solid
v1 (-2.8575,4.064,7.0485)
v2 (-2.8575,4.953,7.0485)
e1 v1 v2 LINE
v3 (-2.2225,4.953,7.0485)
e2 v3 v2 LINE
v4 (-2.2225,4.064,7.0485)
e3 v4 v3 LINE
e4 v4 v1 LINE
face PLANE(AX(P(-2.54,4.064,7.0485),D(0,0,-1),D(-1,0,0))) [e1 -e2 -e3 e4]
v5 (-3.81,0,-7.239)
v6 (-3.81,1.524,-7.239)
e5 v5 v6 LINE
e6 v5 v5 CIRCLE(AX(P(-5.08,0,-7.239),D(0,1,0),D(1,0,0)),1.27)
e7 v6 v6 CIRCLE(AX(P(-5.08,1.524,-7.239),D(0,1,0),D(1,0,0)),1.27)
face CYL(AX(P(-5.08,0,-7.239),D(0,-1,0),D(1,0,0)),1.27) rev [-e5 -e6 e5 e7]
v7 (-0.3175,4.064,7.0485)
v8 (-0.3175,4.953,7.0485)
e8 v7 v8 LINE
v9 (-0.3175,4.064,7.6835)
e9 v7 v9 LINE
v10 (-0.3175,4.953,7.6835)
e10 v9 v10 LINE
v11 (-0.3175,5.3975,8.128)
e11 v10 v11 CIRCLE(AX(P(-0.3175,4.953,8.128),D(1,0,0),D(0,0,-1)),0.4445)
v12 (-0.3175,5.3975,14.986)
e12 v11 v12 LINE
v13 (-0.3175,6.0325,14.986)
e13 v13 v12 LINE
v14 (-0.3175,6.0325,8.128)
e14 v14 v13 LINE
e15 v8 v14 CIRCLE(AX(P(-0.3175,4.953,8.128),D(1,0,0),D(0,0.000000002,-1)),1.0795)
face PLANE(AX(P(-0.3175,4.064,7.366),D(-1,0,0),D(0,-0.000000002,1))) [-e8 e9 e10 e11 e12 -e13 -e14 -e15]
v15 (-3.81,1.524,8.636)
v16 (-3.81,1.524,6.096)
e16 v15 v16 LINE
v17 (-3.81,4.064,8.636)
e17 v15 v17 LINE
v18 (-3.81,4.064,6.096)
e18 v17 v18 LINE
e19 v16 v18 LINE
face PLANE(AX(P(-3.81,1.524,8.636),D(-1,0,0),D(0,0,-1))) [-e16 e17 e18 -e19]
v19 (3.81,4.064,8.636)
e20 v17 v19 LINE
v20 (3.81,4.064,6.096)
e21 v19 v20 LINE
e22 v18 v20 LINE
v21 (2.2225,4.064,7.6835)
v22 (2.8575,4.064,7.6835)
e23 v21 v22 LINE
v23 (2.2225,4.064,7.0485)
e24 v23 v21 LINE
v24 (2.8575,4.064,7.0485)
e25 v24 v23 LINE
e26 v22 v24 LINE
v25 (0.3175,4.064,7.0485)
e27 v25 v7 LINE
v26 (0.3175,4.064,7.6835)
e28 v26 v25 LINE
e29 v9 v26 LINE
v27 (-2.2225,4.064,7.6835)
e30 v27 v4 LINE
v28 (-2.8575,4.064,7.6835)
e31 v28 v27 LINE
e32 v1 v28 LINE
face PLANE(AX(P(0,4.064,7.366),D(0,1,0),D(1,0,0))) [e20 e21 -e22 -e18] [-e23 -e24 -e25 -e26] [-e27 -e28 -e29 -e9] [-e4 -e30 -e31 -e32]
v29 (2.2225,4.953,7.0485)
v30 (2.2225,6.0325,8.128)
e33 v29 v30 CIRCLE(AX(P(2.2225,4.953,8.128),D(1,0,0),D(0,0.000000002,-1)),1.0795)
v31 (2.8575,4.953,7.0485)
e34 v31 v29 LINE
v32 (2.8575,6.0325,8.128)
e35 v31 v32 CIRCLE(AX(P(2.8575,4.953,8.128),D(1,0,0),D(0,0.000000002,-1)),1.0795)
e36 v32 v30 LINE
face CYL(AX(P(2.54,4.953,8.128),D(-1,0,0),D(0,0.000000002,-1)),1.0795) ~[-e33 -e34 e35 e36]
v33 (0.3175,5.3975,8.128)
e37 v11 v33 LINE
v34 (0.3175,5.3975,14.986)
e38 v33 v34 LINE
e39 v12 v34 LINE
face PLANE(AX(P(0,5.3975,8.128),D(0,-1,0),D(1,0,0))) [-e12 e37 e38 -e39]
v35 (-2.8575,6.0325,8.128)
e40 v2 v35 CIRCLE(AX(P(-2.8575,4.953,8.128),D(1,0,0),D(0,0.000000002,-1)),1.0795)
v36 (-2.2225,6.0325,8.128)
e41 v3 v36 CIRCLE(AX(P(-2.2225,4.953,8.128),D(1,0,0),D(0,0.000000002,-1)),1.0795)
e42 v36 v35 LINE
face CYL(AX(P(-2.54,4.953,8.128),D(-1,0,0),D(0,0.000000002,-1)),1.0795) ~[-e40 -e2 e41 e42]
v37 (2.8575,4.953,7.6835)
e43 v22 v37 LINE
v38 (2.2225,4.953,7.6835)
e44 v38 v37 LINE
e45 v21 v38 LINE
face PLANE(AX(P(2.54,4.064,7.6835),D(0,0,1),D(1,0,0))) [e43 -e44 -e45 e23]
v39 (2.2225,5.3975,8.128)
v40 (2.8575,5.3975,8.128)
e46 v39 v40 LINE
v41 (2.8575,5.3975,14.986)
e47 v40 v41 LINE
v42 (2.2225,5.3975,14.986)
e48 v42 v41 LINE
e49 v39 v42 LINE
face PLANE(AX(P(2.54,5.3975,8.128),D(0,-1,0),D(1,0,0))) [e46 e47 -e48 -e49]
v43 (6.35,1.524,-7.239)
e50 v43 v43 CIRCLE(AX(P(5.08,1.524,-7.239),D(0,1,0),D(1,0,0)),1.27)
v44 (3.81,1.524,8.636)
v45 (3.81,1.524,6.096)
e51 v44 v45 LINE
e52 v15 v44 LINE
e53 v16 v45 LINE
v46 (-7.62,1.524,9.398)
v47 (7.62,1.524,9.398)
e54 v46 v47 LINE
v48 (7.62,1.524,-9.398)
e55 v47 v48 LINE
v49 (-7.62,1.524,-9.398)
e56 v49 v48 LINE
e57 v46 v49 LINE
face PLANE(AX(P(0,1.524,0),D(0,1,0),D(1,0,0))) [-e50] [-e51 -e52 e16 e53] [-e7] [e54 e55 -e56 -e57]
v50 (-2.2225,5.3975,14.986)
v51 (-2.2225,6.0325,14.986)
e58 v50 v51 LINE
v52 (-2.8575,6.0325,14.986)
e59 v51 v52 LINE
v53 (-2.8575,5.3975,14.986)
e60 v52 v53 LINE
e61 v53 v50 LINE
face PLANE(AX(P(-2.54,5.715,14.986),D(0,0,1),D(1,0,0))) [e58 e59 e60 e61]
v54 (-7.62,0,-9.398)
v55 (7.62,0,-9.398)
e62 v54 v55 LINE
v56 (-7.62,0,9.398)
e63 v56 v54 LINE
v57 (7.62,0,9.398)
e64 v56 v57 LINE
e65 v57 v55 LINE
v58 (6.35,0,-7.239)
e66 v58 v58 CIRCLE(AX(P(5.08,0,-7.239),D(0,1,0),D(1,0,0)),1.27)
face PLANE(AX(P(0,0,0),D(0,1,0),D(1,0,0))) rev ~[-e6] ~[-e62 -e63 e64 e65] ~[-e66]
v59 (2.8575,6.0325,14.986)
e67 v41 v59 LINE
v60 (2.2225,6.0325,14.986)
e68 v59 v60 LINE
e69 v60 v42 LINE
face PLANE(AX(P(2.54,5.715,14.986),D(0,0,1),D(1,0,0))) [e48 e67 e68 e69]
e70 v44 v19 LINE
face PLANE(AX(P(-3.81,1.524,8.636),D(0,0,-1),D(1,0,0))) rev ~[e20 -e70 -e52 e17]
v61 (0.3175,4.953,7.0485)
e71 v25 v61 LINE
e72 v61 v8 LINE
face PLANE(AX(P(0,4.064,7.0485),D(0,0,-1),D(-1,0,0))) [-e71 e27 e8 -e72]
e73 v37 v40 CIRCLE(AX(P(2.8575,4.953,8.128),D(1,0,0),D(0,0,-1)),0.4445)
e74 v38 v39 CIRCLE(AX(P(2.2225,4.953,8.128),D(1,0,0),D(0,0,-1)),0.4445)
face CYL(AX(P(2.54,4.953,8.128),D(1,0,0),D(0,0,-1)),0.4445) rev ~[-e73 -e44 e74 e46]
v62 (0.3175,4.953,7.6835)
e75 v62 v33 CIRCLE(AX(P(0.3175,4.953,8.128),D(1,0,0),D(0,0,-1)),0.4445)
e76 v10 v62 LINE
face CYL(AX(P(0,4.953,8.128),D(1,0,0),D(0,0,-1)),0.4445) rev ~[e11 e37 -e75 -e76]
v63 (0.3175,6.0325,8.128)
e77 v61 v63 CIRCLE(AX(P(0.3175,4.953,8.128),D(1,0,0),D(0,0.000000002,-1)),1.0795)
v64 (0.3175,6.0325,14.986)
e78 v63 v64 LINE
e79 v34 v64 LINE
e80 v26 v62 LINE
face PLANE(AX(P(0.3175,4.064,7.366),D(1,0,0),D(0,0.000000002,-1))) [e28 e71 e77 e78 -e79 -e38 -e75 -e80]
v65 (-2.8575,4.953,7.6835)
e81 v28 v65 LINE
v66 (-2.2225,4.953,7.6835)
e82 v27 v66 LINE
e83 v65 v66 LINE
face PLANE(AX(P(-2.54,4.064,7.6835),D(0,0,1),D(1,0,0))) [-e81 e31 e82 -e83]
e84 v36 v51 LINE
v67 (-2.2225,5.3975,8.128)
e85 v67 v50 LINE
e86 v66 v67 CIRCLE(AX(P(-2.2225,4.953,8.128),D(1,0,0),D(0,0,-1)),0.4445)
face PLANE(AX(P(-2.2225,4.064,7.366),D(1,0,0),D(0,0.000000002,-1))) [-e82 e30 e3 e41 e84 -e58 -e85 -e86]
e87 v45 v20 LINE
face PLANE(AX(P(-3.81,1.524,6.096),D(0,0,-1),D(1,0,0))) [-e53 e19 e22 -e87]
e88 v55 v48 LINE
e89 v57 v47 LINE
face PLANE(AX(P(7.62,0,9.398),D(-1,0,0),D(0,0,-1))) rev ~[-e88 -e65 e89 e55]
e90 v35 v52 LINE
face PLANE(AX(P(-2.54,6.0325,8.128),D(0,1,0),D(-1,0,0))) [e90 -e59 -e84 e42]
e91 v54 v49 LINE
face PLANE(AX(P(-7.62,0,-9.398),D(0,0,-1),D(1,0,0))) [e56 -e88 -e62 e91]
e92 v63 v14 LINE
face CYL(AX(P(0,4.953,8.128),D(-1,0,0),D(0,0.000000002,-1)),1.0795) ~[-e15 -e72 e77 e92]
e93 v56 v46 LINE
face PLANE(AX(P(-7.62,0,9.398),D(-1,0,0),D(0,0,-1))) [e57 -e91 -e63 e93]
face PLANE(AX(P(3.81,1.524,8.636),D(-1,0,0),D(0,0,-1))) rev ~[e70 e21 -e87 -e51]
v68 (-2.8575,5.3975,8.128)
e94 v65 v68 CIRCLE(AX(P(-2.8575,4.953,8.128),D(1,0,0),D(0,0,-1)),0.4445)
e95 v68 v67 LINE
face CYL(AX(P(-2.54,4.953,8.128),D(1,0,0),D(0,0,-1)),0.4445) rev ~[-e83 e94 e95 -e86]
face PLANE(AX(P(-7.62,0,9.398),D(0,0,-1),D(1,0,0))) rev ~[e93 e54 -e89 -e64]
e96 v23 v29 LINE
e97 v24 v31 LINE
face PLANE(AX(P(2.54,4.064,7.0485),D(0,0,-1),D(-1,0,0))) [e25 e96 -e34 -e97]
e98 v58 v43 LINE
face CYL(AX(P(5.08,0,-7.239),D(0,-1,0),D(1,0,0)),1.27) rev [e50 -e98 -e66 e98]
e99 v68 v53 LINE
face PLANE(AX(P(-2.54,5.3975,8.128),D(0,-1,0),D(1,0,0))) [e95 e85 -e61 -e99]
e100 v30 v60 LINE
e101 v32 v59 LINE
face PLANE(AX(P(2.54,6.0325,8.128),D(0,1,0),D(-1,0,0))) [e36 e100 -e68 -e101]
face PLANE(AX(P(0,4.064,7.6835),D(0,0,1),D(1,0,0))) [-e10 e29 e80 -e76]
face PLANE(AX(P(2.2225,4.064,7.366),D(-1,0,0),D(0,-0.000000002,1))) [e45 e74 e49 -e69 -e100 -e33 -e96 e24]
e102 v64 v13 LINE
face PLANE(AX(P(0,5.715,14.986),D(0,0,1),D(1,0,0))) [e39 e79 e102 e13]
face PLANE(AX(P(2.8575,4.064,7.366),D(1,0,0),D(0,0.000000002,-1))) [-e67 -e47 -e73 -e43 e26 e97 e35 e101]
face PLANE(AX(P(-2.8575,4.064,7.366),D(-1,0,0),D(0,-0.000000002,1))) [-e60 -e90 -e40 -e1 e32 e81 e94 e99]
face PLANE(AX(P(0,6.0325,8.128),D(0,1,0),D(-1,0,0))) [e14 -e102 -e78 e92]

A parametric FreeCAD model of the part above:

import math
import FreeCAD as App
import Part
import Sketcher
Q = App.Units.Quantity

doc = App.newDocument("Part")
body = doc.addObject("PartDesign::Body", "Body")

# Sketch on XZ plane
sketch1 = doc.addObject("Sketcher::SketchObject", "Sketch")
body.addObject(sketch1)
sketch1.AttachmentSupport = (doc.XZ_Plane, [""])
sketch1.MapMode = "FlatFace"
sketch1.addGeometry(Part.LineSegment(App.Vector(-7.62, -9.398, 0), App.Vector(-7.62, 9.398, 0)), False)
sketch1.addGeometry(Part.LineSegment(App.Vector(-7.62, 9.398, 0), App.Vector(7.62, 9.398, 0)), False)
sketch1.addGeometry(Part.LineSegment(App.Vector(7.62, 9.398, 0), App.Vector(7.62, -9.398, 0)), False)
sketch1.addGeometry(Part.LineSegment(App.Vector(7.62, -9.398, 0), App.Vector(-7.62, -9.398, 0)), False)
sketch1.addGeometry(Part.Circle(App.Vector(-5.08, -7.239, 0), App.Vector(0, 0, 1), 1.27), False)
sketch1.addGeometry(Part.Circle(App.Vector(5.08, -7.239, 0), App.Vector(0, 0, 1), 1.27), False)
sketch1.addConstraint(Sketcher.Constraint("Coincident", 0, 2, 1, 1))
sketch1.addConstraint(Sketcher.Constraint("Coincident", 1, 2, 2, 1))
sketch1.addConstraint(Sketcher.Constraint("Coincident", 2, 2, 3, 1))
sketch1.addConstraint(Sketcher.Constraint("Coincident", 3, 2, 0, 1))
sketch1.addConstraint(Sketcher.Constraint("Vertical", 0))
sketch1.addConstraint(Sketcher.Constraint("Horizontal", 1))
sketch1.addConstraint(Sketcher.Constraint("Vertical", 2))
sketch1.addConstraint(Sketcher.Constraint("Horizontal", 3))
sketch1.addConstraint(Sketcher.Constraint("Equal", 4, 5))
sketch1.addConstraint(Sketcher.Constraint("Symmetric", 0, 2, 2, 2, -1, 1))
sketch1.addConstraint(Sketcher.Constraint("Symmetric", 4, 3, 5, 3, -2))
sketch1.addConstraint(Sketcher.Constraint("Diameter", 4, Q("0.1 in")))
sketch1.addConstraint(Sketcher.Constraint("DistanceX", 1, 1, 1, 2, Q("0.6 in")))
sketch1.addConstraint(Sketcher.Constraint("DistanceY", 0, 1, 0, 2, Q("0.74 in")))
sketch1.addConstraint(Sketcher.Constraint("DistanceX", 4, 3, -1, 1, Q("0.2 in")))
sketch1.addConstraint(Sketcher.Constraint("DistanceY", 4, 3, -1, 1, Q("0.285 in")))
pad1 = doc.addObject("PartDesign::Pad", "Pad")
body.addObject(pad1)
pad1.Profile = sketch1
pad1.Length = Q("0.06 in")
pad1.Reversed = True

# Sketch on XZ plane
sketch2 = doc.addObject("Sketcher::SketchObject", "Sketch001")
body.addObject(sketch2)
sketch2.AttachmentSupport = (doc.XZ_Plane, [""])
sketch2.MapMode = "FlatFace"
sketch2.AttachmentOffset = App.Placement(App.Vector(0, 0, -0.06 * 25.4), App.Rotation())
sketch2.addGeometry(Part.LineSegment(App.Vector(-3.81, 6.096, 0), App.Vector(-3.81, 8.636, 0)), False)
sketch2.addGeometry(Part.LineSegment(App.Vector(-3.81, 8.636, 0), App.Vector(3.81, 8.636, 0)), False)
sketch2.addGeometry(Part.LineSegment(App.Vector(3.81, 8.636, 0), App.Vector(3.81, 6.096, 0)), False)
sketch2.addGeometry(Part.LineSegment(App.Vector(3.81, 6.096, 0), App.Vector(-3.81, 6.096, 0)), False)
sketch2.addConstraint(Sketcher.Constraint("Coincident", 0, 2, 1, 1))
sketch2.addConstraint(Sketcher.Constraint("Coincident", 1, 2, 2, 1))
sketch2.addConstraint(Sketcher.Constraint("Coincident", 2, 2, 3, 1))
sketch2.addConstraint(Sketcher.Constraint("Coincident", 3, 2, 0, 1))
sketch2.addConstraint(Sketcher.Constraint("Vertical", 0))
sketch2.addConstraint(Sketcher.Constraint("Horizontal", 1))
sketch2.addConstraint(Sketcher.Constraint("Vertical", 2))
sketch2.addConstraint(Sketcher.Constraint("Horizontal", 3))
sketch2.addConstraint(Sketcher.Constraint("DistanceX", 1, 1, 1, 2, Q("0.3 in")))
sketch2.addConstraint(Sketcher.Constraint("DistanceY", 0, 1, 0, 2, Q("0.1 in")))
sketch2.addConstraint(Sketcher.Constraint("DistanceX", 0, 2, -1, 1, Q("0.15 in")))
sketch2.addConstraint(Sketcher.Constraint("DistanceY", -1, 1, 0, 2, Q("0.34 in")))
pad2 = doc.addObject("PartDesign::Pad", "Pad001")
body.addObject(pad2)
pad2.Profile = sketch2
pad2.Length = Q("0.1 in")
pad2.Reversed = True

# Sketch on XY plane
sketch3 = doc.addObject("Sketcher::SketchObject", "Sketch002")
body.addObject(sketch3)
sketch3.AttachmentSupport = (doc.XY_Plane, [""])
sketch3.MapMode = "FlatFace"
sketch3.AttachmentOffset = App.Placement(App.Vector(0, 0, 0.59 * 25.4), App.Rotation())
sketch3.addGeometry(Part.LineSegment(App.Vector(-0.3175, 6.0325, 0), App.Vector(-0.3175, 5.3975, 0)), False)
sketch3.addGeometry(Part.LineSegment(App.Vector(-0.3175, 5.3975, 0), App.Vector(0.3175, 5.3975, 0)), False)
sketch3.addGeometry(Part.LineSegment(App.Vector(0.3175, 5.3975, 0), App.Vector(0.3175, 6.0325, 0)), False)
sketch3.addGeometry(Part.LineSegment(App.Vector(0.3175, 6.0325, 0), App.Vector(-0.3175, 6.0325, 0)), False)
sketch3.addConstraint(Sketcher.Constraint("Coincident", 0, 2, 1, 1))
sketch3.addConstraint(Sketcher.Constraint("Coincident", 1, 2, 2, 1))
sketch3.addConstraint(Sketcher.Constraint("Coincident", 2, 2, 3, 1))
sketch3.addConstraint(Sketcher.Constraint("Coincident", 3, 2, 0, 1))
sketch3.addConstraint(Sketcher.Constraint("Vertical", 0))
sketch3.addConstraint(Sketcher.Constraint("Horizontal", 1))
sketch3.addConstraint(Sketcher.Constraint("Vertical", 2))
sketch3.addConstraint(Sketcher.Constraint("Horizontal", 3))
sketch3.addConstraint(Sketcher.Constraint("Equal", 3, 0))
sketch3.addConstraint(Sketcher.Constraint("DistanceX", 1, 1, 1, 2, Q("0.025 in")))
sketch3.addConstraint(Sketcher.Constraint("DistanceX", 0, 2, -1, 1, Q("0.0125 in")))
sketch3.addConstraint(Sketcher.Constraint("DistanceY", -1, 1, 0, 2, Q("0.2125 in")))

# Sketch on YZ plane
sketch4 = doc.addObject("Sketcher::SketchObject", "Sketch003")
body.addObject(sketch4)
sketch4.AttachmentSupport = (doc.YZ_Plane, [""])
sketch4.MapMode = "FlatFace"
sketch4.addGeometry(Part.LineSegment(App.Vector(4.064, 7.366, 0), App.Vector(4.953, 7.366, 0)), False)
sketch4.addGeometry(Part.ArcOfCircle(Part.Circle(App.Vector(4.953, 8.128, 0), App.Vector(0, 0, 1), 0.762), math.radians(-90), math.radians(0)), False)
sketch4.addGeometry(Part.LineSegment(App.Vector(5.715, 8.128, 0), App.Vector(5.715, 14.986, 0)), False)
sketch4.addConstraint(Sketcher.Constraint("Tangent", 0, 2, 1, 1))
sketch4.addConstraint(Sketcher.Constraint("Tangent", 1, 2, 2, 1))
sketch4.addConstraint(Sketcher.Constraint("Horizontal", 0))
sketch4.addConstraint(Sketcher.Constraint("Vertical", 2))
sketch4.addConstraint(Sketcher.Constraint("Radius", 1, Q("0.03 in")))
sketch4.addConstraint(Sketcher.Constraint("DistanceY", 2, 1, 2, 2, Q("0.27 in")))
sketch4.addConstraint(Sketcher.Constraint("DistanceX", 0, 1, 0, 2, Q("0.035 in")))
sketch4.addConstraint(Sketcher.Constraint("DistanceY", -1, 1, 1, 3, Q("0.32 in")))
sketch4.addConstraint(Sketcher.Constraint("DistanceX", -1, 1, 0, 1, Q("0.16 in")))
doc.recompute()

additivepipe = doc.addObject("PartDesign::AdditivePipe", "AdditivePipe")
body.addObject(additivepipe)
additivepipe.Profile = sketch3
additivepipe.Spine = (sketch4, ["Edge1", "Edge2", "Edge3"])
doc.recompute()

linearpattern = doc.addObject("PartDesign::LinearPattern", "LinearPattern")
body.addObject(linearpattern)
linearpattern.Originals = [additivepipe]
linearpattern.Direction = (doc.X_Axis, [""])
linearpattern.Mode = "offset"
linearpattern.Offset = Q("0.1 in")
linearpattern.Occurrences = 2
body.Tip = linearpattern
doc.recompute()

linearpattern2 = doc.addObject("PartDesign::LinearPattern", "LinearPattern001")
body.addObject(linearpattern2)
linearpattern2.Originals = [additivepipe]
linearpattern2.Direction = (doc.X_Axis, [""])
linearpattern2.Mode = "offset"
linearpattern2.Offset = Q("0.1 in")
linearpattern2.Occurrences = 2
linearpattern2.Reversed = True
body.Tip = linearpattern2

doc.recompute()
